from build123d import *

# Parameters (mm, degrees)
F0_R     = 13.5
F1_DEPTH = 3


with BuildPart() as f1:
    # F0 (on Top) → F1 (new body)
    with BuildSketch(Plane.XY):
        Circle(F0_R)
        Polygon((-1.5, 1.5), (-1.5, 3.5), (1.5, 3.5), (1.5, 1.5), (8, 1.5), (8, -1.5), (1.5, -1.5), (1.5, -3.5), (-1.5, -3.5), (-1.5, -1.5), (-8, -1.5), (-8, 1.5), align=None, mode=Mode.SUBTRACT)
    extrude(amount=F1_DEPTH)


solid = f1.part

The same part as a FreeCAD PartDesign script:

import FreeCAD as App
import Part
import Sketcher
Q = App.Units.Quantity


def add_polygon(sketch, points):
    """Adds a closed chain of lines whose ends are joined by coincident constraints."""
    first, n = sketch.GeometryCount, len(points)
    for a, b in zip(points, points[1:] + points[:1]):
        sketch.addGeometry(Part.LineSegment(App.Vector(*a, 0), App.Vector(*b, 0)), False)
    for i in range(n):
        sketch.addConstraint(Sketcher.Constraint("Coincident", first + i, 2, first + (i + 1) % n, 1))

doc = App.newDocument("Part")
body = doc.addObject("PartDesign::Body", "Body")

# Sketch on XY plane
sketch1 = body.newObject("Sketcher::SketchObject", "Sketch")
sketch1.AttachmentSupport = (doc.getObject("XY_Plane"), [""])
sketch1.MapMode = "FlatFace"
sketch1.addGeometry(Part.Circle(App.Vector(0, 0, 0), App.Vector(0, 0, 1), 13.5), False)  # 0
add_polygon(sketch1, [(-8, 1.5), (-1.5, 1.5), (-1.5, 3.5), (1.5, 3.5), (1.5, 1.5), (8, 1.5), (8, -1.5), (1.5, -1.5), (1.5, -3.5), (-1.5, -3.5), (-1.5, -1.5), (-8, -1.5)])  # lines 1-12
sketch1.addConstraint([
    Sketcher.Constraint("Horizontal", 1),
    Sketcher.Constraint("Vertical", 2),
    Sketcher.Constraint("Horizontal", 3),
    Sketcher.Constraint("Vertical", 4),
    Sketcher.Constraint("Horizontal", 5),
    Sketcher.Constraint("Vertical", 6),
    Sketcher.Constraint("Horizontal", 7),
    Sketcher.Constraint("Vertical", 8),
    Sketcher.Constraint("Horizontal", 9),
    Sketcher.Constraint("Vertical", 10),
    Sketcher.Constraint("Horizontal", 11),
    Sketcher.Constraint("Vertical", 12),
    Sketcher.Constraint("Coincident", 0, 3, -1, 1),
    Sketcher.Constraint("Symmetric", 1, 2, 7, 2, -1, 1),
    Sketcher.Constraint("Symmetric", 3, 2, 9, 2, -1, 1),
    Sketcher.Constraint("Symmetric", 5, 2, 11, 2, -1, 1),
    Sketcher.Constraint("Symmetric", 1, 2, 4, 2, -2),
    Sketcher.Constraint("Equal", 9, 6),
    Sketcher.Constraint("Diameter", 0, Q("27 mm")),
    Sketcher.Constraint("DistanceX", 3, 1, 3, 2, Q("3 mm")),
    Sketcher.Constraint("DistanceY", 2, 1, 2, 2, Q("2 mm")),
    Sketcher.Constraint("DistanceX", 1, 1, 1, 2, Q("6.5 mm")),
])
pad1 = body.newObject("PartDesign::Pad", "Pad")
pad1.Profile = sketch1
pad1.Length = 3

doc.recompute()
